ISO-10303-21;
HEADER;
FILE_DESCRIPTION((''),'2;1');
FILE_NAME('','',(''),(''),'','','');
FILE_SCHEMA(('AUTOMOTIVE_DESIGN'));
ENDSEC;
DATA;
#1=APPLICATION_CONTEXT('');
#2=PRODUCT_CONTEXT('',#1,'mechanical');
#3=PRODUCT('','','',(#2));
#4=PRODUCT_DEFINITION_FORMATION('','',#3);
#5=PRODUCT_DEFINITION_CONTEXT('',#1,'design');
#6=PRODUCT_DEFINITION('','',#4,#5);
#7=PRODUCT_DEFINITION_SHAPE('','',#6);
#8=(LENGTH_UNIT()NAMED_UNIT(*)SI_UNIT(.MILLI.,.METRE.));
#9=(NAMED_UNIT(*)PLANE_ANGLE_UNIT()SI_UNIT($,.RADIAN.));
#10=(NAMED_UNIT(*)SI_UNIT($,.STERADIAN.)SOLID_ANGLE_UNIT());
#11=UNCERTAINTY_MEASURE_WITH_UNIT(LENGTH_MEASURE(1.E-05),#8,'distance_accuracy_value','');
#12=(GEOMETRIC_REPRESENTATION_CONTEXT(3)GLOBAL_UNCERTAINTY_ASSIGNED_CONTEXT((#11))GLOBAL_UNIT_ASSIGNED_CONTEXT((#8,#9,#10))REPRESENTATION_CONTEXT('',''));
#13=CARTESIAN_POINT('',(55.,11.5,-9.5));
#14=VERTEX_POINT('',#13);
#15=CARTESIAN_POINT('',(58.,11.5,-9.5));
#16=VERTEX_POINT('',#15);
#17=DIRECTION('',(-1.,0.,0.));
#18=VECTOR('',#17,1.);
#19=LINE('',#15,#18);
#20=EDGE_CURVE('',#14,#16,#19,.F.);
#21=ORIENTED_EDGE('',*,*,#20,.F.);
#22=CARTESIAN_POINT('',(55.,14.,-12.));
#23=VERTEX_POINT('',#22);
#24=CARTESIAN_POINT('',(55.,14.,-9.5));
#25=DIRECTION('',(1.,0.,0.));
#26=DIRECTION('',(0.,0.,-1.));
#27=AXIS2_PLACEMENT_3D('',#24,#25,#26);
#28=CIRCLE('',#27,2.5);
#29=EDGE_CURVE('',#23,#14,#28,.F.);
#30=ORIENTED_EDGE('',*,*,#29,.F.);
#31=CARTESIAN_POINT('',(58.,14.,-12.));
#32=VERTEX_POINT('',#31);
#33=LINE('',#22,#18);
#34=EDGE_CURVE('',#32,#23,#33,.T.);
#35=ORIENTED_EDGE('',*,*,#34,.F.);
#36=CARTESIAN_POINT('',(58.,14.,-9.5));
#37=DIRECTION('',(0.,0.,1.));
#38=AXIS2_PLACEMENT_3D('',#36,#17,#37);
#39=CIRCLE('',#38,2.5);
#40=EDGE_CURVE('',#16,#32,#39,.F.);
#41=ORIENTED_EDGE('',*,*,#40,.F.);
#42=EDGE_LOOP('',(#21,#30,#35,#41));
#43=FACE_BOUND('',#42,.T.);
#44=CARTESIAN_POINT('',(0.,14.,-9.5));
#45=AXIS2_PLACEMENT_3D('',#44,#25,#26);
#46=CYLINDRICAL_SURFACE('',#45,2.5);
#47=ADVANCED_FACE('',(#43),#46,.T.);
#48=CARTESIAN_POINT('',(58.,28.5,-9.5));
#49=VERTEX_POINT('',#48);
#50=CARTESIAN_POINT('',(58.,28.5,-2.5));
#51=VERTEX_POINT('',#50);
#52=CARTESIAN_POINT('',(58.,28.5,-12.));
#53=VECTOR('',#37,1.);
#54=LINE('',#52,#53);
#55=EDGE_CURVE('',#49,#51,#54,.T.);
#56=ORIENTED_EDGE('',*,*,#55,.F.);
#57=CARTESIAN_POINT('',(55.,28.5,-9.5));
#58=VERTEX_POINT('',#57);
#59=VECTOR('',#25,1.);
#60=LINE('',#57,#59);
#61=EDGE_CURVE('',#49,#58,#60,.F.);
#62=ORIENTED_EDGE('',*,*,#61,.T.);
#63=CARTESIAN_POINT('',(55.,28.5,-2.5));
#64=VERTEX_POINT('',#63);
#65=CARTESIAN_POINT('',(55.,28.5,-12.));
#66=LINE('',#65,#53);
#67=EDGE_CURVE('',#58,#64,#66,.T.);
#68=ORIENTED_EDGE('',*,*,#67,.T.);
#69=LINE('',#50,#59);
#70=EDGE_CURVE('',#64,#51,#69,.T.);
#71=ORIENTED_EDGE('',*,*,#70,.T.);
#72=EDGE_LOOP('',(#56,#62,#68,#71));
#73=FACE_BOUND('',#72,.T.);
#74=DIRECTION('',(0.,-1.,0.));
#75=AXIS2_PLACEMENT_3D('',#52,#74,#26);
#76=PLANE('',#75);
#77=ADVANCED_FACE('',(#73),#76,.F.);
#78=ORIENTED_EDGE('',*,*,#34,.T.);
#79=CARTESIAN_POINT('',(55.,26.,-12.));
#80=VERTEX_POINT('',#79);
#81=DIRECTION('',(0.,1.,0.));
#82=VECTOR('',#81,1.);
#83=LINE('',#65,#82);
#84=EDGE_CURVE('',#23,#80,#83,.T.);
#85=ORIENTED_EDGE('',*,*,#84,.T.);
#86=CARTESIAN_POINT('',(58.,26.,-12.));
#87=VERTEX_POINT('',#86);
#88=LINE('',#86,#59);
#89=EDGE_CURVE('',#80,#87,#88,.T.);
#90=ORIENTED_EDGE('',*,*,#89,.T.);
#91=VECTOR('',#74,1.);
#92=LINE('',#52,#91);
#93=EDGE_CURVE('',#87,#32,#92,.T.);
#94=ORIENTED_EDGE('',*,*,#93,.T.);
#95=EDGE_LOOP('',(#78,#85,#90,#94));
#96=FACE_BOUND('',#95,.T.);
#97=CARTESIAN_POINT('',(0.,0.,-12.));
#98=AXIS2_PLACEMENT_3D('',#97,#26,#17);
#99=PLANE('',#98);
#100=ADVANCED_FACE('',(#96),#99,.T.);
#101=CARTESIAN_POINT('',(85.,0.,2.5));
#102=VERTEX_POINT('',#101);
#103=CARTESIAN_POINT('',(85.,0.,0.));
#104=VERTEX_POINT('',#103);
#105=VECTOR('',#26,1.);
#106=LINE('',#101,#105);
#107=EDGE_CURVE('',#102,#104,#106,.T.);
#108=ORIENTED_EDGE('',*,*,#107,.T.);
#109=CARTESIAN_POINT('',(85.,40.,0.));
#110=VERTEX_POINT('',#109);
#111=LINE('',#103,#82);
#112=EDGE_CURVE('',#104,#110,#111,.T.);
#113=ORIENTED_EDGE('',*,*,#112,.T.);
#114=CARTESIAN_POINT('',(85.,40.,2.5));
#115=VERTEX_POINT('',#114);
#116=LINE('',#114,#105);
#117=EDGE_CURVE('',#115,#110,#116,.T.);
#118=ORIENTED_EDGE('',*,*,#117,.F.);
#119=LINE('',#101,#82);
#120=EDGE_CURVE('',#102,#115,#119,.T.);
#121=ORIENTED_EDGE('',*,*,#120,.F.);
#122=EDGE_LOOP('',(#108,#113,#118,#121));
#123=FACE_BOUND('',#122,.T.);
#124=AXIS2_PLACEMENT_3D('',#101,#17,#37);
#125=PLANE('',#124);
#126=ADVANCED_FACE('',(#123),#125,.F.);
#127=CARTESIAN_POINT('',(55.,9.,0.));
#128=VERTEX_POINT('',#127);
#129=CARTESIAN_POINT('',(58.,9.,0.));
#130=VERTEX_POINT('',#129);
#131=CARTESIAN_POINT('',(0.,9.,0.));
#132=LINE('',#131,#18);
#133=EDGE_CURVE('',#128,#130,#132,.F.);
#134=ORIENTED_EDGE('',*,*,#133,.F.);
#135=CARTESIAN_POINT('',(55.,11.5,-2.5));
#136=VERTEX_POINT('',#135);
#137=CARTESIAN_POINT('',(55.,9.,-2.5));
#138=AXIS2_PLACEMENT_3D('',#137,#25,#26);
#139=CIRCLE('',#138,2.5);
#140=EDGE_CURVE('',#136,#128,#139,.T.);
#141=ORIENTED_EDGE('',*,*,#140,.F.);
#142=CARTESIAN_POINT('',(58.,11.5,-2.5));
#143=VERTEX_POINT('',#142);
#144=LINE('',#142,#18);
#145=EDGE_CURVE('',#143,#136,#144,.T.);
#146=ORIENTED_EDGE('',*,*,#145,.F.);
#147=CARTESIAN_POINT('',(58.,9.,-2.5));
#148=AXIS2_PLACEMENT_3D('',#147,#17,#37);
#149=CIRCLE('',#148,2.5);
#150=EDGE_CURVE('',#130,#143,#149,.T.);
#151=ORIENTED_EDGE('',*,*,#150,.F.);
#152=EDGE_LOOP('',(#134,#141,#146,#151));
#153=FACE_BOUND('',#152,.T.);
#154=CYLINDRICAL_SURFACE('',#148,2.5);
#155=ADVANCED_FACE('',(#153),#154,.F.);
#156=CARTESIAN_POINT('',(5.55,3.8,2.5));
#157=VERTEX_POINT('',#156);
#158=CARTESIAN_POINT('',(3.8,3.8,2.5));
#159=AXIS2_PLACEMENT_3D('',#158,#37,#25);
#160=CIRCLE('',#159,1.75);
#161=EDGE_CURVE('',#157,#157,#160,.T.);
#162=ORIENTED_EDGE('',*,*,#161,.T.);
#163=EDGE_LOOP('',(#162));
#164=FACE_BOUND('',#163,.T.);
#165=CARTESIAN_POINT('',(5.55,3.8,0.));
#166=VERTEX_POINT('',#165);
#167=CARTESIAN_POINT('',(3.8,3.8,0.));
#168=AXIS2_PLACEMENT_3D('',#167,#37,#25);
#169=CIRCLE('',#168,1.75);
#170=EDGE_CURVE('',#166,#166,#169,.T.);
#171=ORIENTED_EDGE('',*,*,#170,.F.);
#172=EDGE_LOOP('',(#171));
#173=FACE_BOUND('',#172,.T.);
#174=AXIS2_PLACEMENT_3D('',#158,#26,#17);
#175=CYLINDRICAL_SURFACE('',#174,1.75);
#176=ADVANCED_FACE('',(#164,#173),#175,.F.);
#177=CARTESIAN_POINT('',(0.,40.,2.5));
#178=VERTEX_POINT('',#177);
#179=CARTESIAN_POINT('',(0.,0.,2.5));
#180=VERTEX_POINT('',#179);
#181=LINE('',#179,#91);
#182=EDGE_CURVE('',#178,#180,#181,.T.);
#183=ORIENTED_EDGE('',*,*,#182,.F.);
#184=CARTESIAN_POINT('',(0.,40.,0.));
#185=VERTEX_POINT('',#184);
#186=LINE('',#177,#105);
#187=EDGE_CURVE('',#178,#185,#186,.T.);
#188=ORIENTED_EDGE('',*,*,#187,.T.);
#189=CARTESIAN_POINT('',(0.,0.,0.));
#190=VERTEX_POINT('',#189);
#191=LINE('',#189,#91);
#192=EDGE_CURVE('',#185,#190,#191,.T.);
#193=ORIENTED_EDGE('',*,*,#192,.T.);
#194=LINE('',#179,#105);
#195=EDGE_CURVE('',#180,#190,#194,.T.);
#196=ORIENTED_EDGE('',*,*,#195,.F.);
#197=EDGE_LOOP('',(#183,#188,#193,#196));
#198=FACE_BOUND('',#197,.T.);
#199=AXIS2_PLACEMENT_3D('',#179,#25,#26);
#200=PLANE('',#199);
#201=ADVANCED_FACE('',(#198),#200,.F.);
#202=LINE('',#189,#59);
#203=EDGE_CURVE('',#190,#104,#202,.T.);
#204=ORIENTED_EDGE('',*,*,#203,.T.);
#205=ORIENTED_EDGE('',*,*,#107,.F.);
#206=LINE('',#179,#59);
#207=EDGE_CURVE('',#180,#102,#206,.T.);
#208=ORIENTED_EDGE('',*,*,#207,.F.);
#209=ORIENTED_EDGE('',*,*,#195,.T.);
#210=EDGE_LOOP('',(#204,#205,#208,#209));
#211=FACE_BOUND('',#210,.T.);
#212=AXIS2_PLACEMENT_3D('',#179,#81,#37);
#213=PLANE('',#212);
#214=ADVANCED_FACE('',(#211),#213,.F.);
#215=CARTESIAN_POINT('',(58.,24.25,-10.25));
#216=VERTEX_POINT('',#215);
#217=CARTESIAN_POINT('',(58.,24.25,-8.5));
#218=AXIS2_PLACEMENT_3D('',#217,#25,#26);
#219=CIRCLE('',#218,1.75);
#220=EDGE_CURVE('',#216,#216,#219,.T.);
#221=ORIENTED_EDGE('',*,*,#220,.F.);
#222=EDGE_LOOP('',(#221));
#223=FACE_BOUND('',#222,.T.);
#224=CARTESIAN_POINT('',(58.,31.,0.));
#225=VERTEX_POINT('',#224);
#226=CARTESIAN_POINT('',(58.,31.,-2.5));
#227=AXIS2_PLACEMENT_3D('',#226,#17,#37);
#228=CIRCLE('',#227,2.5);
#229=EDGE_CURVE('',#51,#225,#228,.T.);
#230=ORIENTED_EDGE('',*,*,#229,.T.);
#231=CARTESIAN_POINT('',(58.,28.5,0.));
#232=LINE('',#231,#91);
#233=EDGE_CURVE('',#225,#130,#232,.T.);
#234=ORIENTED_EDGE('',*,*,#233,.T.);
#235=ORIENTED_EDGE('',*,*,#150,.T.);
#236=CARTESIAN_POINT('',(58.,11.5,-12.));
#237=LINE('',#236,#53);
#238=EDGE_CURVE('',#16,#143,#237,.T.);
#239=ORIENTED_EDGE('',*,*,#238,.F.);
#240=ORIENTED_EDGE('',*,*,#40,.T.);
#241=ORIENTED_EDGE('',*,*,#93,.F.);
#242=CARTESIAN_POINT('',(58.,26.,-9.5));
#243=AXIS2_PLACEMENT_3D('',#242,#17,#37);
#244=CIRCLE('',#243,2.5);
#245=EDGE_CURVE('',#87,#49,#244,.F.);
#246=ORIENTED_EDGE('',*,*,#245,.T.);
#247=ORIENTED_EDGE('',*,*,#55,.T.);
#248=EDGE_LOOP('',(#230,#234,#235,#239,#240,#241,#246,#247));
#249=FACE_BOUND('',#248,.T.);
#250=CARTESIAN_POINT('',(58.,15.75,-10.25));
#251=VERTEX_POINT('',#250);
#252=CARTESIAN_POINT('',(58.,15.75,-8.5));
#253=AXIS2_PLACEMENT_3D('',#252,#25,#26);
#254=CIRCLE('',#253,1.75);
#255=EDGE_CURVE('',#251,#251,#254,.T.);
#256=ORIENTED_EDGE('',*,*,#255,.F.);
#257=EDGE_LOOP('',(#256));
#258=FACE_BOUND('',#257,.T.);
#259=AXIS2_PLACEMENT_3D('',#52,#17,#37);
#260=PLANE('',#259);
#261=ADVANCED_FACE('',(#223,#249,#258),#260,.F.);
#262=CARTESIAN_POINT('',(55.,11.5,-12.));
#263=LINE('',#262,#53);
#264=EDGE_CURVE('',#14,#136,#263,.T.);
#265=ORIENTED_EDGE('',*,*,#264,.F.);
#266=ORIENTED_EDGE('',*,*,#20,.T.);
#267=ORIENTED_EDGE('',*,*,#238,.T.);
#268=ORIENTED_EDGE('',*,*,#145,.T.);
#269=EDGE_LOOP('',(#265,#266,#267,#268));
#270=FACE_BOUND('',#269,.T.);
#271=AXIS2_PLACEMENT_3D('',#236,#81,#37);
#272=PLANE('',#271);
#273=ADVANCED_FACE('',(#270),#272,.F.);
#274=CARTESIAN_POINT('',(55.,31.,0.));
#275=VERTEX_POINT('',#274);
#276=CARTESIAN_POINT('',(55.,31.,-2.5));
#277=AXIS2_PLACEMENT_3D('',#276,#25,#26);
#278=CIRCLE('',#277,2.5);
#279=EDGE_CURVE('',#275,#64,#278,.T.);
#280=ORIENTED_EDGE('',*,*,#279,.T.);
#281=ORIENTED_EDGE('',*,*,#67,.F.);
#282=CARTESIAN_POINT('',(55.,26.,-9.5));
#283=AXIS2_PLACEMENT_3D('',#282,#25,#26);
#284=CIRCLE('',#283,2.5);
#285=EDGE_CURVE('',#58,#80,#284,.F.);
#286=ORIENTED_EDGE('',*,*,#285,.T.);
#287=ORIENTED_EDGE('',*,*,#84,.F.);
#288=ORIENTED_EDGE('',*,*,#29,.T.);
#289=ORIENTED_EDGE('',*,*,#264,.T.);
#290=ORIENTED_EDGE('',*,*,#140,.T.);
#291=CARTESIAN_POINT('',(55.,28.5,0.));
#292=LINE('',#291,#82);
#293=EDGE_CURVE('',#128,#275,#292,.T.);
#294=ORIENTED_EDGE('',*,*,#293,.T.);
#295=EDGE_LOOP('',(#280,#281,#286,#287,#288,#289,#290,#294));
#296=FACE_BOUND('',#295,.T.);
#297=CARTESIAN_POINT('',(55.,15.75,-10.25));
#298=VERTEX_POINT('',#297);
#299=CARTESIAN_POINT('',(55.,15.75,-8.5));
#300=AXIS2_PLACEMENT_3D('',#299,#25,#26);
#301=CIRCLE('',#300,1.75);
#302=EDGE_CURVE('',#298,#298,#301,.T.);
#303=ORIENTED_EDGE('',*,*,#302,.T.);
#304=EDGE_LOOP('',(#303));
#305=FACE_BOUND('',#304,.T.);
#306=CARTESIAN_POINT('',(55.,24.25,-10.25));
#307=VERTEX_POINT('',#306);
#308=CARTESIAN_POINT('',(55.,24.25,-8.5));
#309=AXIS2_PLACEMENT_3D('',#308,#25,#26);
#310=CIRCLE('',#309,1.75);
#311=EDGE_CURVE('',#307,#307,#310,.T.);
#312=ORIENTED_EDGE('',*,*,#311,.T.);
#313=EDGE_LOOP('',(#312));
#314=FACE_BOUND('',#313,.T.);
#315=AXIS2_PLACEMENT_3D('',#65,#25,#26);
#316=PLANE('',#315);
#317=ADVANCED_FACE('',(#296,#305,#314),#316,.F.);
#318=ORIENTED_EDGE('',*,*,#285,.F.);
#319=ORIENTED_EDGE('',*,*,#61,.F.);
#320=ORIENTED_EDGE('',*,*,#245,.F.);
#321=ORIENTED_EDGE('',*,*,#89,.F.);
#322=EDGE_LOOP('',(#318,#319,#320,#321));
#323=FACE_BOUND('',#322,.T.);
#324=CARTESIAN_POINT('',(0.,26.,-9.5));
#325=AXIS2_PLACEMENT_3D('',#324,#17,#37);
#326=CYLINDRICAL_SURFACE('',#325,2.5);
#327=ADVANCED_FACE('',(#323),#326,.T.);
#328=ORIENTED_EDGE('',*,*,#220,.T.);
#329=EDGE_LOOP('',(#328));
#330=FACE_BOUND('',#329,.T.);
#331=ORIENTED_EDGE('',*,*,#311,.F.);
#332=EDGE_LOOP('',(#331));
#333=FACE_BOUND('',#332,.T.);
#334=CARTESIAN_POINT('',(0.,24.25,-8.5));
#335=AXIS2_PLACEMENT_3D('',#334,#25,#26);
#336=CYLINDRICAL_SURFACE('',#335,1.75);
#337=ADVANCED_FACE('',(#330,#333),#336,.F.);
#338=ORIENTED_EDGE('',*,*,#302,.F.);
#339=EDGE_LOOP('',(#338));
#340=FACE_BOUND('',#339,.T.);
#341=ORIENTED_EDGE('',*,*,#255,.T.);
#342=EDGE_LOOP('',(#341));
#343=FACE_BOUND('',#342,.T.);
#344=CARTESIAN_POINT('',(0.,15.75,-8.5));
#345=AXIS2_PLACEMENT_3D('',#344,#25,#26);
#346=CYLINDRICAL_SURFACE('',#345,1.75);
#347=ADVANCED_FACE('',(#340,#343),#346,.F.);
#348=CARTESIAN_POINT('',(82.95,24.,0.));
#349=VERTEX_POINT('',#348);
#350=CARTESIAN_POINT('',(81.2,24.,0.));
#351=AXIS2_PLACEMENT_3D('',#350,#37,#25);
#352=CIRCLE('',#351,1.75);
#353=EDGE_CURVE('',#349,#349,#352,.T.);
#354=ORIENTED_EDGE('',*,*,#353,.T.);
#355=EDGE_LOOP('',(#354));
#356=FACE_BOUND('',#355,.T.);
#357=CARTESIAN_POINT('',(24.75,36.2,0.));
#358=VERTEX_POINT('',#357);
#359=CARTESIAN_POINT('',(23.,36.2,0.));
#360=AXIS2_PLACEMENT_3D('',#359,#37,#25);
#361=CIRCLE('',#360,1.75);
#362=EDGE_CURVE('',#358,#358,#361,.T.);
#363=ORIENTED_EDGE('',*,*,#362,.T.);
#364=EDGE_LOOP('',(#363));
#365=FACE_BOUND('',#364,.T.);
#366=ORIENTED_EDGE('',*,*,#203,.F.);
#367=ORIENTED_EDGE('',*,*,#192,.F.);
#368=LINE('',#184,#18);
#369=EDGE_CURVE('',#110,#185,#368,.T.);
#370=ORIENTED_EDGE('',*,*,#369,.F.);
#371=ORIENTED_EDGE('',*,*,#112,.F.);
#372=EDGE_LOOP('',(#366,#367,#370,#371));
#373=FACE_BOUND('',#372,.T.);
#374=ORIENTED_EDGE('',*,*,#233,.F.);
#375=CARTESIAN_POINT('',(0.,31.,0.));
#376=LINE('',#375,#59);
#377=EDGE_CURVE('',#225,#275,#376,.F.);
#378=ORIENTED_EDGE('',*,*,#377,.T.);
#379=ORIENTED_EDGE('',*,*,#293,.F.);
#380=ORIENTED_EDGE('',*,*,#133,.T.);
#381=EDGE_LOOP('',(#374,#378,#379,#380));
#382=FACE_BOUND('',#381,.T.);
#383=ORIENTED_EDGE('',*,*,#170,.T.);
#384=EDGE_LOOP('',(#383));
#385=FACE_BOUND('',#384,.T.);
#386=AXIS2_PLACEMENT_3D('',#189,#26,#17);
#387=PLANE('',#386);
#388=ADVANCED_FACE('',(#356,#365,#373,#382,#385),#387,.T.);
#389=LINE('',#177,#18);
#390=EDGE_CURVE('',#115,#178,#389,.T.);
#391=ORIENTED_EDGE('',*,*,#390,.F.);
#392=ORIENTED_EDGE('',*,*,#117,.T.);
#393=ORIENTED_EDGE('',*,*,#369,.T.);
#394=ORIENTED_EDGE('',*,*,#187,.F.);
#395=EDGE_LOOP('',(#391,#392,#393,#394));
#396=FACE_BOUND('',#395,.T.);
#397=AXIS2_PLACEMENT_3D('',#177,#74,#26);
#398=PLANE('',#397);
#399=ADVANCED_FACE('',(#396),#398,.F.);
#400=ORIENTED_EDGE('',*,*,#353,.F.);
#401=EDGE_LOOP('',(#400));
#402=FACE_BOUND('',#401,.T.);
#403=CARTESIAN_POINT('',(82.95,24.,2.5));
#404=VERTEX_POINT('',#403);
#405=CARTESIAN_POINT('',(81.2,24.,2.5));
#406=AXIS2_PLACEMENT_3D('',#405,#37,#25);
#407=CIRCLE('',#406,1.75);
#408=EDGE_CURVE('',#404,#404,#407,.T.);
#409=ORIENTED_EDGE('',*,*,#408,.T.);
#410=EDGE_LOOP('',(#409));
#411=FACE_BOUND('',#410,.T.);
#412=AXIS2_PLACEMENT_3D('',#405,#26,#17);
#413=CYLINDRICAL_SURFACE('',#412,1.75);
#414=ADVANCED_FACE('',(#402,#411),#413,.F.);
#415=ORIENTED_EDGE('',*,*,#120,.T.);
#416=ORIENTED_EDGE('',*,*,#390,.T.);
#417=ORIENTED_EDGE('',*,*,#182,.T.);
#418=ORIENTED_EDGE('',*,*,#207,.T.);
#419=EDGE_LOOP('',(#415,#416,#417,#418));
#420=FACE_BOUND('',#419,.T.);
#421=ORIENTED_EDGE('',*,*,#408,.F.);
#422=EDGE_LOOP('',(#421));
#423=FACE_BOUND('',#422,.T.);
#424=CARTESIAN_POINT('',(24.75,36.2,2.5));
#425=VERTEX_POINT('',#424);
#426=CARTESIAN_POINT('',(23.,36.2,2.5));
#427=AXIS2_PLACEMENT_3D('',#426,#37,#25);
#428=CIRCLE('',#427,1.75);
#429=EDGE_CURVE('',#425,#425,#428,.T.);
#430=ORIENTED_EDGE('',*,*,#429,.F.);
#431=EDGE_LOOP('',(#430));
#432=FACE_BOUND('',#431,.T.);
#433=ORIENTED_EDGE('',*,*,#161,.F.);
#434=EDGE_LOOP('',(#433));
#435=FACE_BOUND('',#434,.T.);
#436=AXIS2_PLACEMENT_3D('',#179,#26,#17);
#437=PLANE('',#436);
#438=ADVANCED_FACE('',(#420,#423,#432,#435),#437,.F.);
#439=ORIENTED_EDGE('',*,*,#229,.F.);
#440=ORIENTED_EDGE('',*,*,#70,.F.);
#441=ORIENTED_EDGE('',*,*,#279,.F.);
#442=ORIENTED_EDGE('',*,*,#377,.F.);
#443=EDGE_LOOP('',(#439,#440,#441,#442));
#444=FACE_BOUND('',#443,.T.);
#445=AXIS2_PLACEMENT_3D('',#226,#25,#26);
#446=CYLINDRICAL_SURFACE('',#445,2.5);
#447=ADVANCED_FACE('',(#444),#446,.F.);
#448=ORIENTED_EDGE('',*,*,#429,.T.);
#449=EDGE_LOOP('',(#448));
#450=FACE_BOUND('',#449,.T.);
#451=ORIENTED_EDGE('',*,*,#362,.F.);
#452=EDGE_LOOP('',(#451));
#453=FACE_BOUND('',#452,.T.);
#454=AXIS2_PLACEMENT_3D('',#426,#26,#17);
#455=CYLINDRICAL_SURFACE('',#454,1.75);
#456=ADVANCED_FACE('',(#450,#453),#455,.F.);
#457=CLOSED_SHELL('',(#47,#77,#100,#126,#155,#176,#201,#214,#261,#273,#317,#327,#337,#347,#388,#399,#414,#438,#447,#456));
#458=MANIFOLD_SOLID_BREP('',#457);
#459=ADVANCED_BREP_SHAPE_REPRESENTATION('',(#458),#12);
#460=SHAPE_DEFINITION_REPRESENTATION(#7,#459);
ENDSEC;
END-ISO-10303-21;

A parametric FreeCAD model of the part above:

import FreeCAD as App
import Part
import Sketcher
Q = App.Units.Quantity


def edges_at(feature, points):
    """Names of the edges that pass closest to the given points."""
    edges = feature.Shape.Edges
    near = lambda p: min(range(len(edges)), key=lambda i: edges[i].distToShape(Part.Vertex(*p))[0])
    return sorted({f"Edge{near(p) + 1}" for p in points})

doc = App.newDocument("Part")
body = doc.addObject("PartDesign::Body", "Body")

# Sketch on XY plane
sketch1 = body.newObject("Sketcher::SketchObject", "Sketch")
sketch1.AttachmentSupport = (doc.getObject("XY_Plane"), [""])
sketch1.MapMode = "FlatFace"
sketch1.addGeometry(Part.LineSegment(App.Vector(0, 40, 0), App.Vector(0, 0, 0)), False)
sketch1.addGeometry(Part.LineSegment(App.Vector(0, 0, 0), App.Vector(85, 0, 0)), False)
sketch1.addGeometry(Part.LineSegment(App.Vector(85, 0, 0), App.Vector(85, 40, 0)), False)
sketch1.addGeometry(Part.LineSegment(App.Vector(85, 40, 0), App.Vector(0, 40, 0)), False)
sketch1.addGeometry(Part.Circle(App.Vector(3.8, 3.8, 0), App.Vector(0, 0, 1), 1.75), False)
sketch1.addGeometry(Part.Circle(App.Vector(23, 36.2, 0), App.Vector(0, 0, 1), 1.75), False)
sketch1.addGeometry(Part.Circle(App.Vector(81.2, 24, 0), App.Vector(0, 0, 1), 1.75), False)
sketch1.addConstraint(Sketcher.Constraint("Coincident", 0, 2, 1, 1))
sketch1.addConstraint(Sketcher.Constraint("Coincident", 1, 2, 2, 1))
sketch1.addConstraint(Sketcher.Constraint("Coincident", 2, 2, 3, 1))
sketch1.addConstraint(Sketcher.Constraint("Coincident", 3, 2, 0, 1))
sketch1.addConstraint(Sketcher.Constraint("Vertical", 0))
sketch1.addConstraint(Sketcher.Constraint("Horizontal", 1))
sketch1.addConstraint(Sketcher.Constraint("Vertical", 2))
sketch1.addConstraint(Sketcher.Constraint("Horizontal", 3))
sketch1.addConstraint(Sketcher.Constraint("Coincident", 0, 2, -1, 1))
sketch1.addConstraint(Sketcher.Constraint("Equal", 4, 5))
sketch1.addConstraint(Sketcher.Constraint("Equal", 5, 6))
sketch1.addConstraint(Sketcher.Constraint("Diameter", 4, Q("3.5 mm")))
sketch1.addConstraint(Sketcher.Constraint("DistanceX", 1, 1, 1, 2, Q("85 mm")))
sketch1.addConstraint(Sketcher.Constraint("DistanceY", 0, 2, 0, 1, Q("40 mm")))
sketch1.addConstraint(Sketcher.Constraint("DistanceX", -1, 1, 5, 3, Q("23 mm")))
sketch1.addConstraint(Sketcher.Constraint("DistanceY", -1, 1, 6, 3, Q("24 mm")))
sketch1.addConstraint(Sketcher.Constraint("DistanceX", -1, 1, 4, 3, Q("3.8 mm")))
sketch1.addConstraint(Sketcher.Constraint("DistanceY", -1, 1, 4, 3, Q("3.8 mm")))
sketch1.addConstraint(Sketcher.Constraint("DistanceY", -1, 1, 5, 3, Q("36.2 mm")))
sketch1.addConstraint(Sketcher.Constraint("DistanceX", -1, 1, 6, 3, Q("81.2 mm")))
pad1 = body.newObject("PartDesign::Pad", "Pad")
pad1.Profile = sketch1
pad1.Length = 2.5

# Sketch on XY plane
sketch2 = body.newObject("Sketcher::SketchObject", "Sketch001")
sketch2.AttachmentSupport = (doc.getObject("XY_Plane"), [""])
sketch2.MapMode = "FlatFace"
sketch2.addGeometry(Part.LineSegment(App.Vector(58, 28.5, 0), App.Vector(58, 11.5, 0)), False)
sketch2.addGeometry(Part.LineSegment(App.Vector(58, 11.5, 0), App.Vector(55, 11.5, 0)), False)
sketch2.addGeometry(Part.LineSegment(App.Vector(55, 11.5, 0), App.Vector(55, 28.5, 0)), False)
sketch2.addGeometry(Part.LineSegment(App.Vector(55, 28.5, 0), App.Vector(58, 28.5, 0)), False)
sketch2.addConstraint(Sketcher.Constraint("Coincident", 0, 2, 1, 1))
sketch2.addConstraint(Sketcher.Constraint("Coincident", 1, 2, 2, 1))
sketch2.addConstraint(Sketcher.Constraint("Coincident", 2, 2, 3, 1))
sketch2.addConstraint(Sketcher.Constraint("Coincident", 3, 2, 0, 1))
sketch2.addConstraint(Sketcher.Constraint("Vertical", 0))
sketch2.addConstraint(Sketcher.Constraint("Horizontal", 1))
sketch2.addConstraint(Sketcher.Constraint("Vertical", 2))
sketch2.addConstraint(Sketcher.Constraint("Horizontal", 3))
sketch2.addConstraint(Sketcher.Constraint("DistanceX", 1, 2, 1, 1, Q("3 mm")))
sketch2.addConstraint(Sketcher.Constraint("DistanceY", 0, 2, 0, 1, Q("17 mm")))
sketch2.addConstraint(Sketcher.Constraint("DistanceX", -1, 1, 0, 2, Q("58 mm")))
sketch2.addConstraint(Sketcher.Constraint("DistanceY", -1, 1, 0, 2, Q("11.5 mm")))
pad2 = body.newObject("PartDesign::Pad", "Pad001")
pad2.Profile = sketch2
pad2.Length = 12
pad2.Reversed = True

# Sketch on YZ plane
sketch3 = body.newObject("Sketcher::SketchObject", "Sketch002")
sketch3.AttachmentSupport = (doc.getObject("YZ_Plane"), [""])
sketch3.MapMode = "FlatFace"
sketch3.AttachmentOffset = App.Placement(App.Vector(0, 0, 58), App.Rotation())
sketch3.addGeometry(Part.Circle(App.Vector(24.25, -8.5, 0), App.Vector(0, 0, 1), 1.75), False)
sketch3.addGeometry(Part.Circle(App.Vector(15.75, -8.5, 0), App.Vector(0, 0, 1), 1.75), False)
sketch3.addConstraint(Sketcher.Constraint("Equal", 0, 1))
sketch3.addConstraint(Sketcher.Constraint("Horizontal", 0, 3, 1, 3))
sketch3.addConstraint(Sketcher.Constraint("Diameter", 0, Q("3.5 mm")))
sketch3.addConstraint(Sketcher.Constraint("DistanceY", 0, 3, -1, 1, Q("8.5 mm")))
sketch3.addConstraint(Sketcher.Constraint("DistanceX", 1, 3, 0, 3, Q("8.5 mm")))
sketch3.addConstraint(Sketcher.Constraint("DistanceX", -1, 1, 0, 3, Q("24.25 mm")))
pocket1 = body.newObject("PartDesign::Pocket", "Pocket")
pocket1.Profile = sketch3
pocket1.Type = "ThroughAll"
doc.recompute()

fillet = body.newObject("PartDesign::Fillet", "Fillet")
fillet.Base = (pocket1, edges_at(pocket1, [
    (56.5, 11.5, 0),
    (56.5, 28.5, 0),
    (56.5, 11.5, -12),
    (56.5, 28.5, -12),
]))
fillet.Radius = 2.5

doc.recompute()
